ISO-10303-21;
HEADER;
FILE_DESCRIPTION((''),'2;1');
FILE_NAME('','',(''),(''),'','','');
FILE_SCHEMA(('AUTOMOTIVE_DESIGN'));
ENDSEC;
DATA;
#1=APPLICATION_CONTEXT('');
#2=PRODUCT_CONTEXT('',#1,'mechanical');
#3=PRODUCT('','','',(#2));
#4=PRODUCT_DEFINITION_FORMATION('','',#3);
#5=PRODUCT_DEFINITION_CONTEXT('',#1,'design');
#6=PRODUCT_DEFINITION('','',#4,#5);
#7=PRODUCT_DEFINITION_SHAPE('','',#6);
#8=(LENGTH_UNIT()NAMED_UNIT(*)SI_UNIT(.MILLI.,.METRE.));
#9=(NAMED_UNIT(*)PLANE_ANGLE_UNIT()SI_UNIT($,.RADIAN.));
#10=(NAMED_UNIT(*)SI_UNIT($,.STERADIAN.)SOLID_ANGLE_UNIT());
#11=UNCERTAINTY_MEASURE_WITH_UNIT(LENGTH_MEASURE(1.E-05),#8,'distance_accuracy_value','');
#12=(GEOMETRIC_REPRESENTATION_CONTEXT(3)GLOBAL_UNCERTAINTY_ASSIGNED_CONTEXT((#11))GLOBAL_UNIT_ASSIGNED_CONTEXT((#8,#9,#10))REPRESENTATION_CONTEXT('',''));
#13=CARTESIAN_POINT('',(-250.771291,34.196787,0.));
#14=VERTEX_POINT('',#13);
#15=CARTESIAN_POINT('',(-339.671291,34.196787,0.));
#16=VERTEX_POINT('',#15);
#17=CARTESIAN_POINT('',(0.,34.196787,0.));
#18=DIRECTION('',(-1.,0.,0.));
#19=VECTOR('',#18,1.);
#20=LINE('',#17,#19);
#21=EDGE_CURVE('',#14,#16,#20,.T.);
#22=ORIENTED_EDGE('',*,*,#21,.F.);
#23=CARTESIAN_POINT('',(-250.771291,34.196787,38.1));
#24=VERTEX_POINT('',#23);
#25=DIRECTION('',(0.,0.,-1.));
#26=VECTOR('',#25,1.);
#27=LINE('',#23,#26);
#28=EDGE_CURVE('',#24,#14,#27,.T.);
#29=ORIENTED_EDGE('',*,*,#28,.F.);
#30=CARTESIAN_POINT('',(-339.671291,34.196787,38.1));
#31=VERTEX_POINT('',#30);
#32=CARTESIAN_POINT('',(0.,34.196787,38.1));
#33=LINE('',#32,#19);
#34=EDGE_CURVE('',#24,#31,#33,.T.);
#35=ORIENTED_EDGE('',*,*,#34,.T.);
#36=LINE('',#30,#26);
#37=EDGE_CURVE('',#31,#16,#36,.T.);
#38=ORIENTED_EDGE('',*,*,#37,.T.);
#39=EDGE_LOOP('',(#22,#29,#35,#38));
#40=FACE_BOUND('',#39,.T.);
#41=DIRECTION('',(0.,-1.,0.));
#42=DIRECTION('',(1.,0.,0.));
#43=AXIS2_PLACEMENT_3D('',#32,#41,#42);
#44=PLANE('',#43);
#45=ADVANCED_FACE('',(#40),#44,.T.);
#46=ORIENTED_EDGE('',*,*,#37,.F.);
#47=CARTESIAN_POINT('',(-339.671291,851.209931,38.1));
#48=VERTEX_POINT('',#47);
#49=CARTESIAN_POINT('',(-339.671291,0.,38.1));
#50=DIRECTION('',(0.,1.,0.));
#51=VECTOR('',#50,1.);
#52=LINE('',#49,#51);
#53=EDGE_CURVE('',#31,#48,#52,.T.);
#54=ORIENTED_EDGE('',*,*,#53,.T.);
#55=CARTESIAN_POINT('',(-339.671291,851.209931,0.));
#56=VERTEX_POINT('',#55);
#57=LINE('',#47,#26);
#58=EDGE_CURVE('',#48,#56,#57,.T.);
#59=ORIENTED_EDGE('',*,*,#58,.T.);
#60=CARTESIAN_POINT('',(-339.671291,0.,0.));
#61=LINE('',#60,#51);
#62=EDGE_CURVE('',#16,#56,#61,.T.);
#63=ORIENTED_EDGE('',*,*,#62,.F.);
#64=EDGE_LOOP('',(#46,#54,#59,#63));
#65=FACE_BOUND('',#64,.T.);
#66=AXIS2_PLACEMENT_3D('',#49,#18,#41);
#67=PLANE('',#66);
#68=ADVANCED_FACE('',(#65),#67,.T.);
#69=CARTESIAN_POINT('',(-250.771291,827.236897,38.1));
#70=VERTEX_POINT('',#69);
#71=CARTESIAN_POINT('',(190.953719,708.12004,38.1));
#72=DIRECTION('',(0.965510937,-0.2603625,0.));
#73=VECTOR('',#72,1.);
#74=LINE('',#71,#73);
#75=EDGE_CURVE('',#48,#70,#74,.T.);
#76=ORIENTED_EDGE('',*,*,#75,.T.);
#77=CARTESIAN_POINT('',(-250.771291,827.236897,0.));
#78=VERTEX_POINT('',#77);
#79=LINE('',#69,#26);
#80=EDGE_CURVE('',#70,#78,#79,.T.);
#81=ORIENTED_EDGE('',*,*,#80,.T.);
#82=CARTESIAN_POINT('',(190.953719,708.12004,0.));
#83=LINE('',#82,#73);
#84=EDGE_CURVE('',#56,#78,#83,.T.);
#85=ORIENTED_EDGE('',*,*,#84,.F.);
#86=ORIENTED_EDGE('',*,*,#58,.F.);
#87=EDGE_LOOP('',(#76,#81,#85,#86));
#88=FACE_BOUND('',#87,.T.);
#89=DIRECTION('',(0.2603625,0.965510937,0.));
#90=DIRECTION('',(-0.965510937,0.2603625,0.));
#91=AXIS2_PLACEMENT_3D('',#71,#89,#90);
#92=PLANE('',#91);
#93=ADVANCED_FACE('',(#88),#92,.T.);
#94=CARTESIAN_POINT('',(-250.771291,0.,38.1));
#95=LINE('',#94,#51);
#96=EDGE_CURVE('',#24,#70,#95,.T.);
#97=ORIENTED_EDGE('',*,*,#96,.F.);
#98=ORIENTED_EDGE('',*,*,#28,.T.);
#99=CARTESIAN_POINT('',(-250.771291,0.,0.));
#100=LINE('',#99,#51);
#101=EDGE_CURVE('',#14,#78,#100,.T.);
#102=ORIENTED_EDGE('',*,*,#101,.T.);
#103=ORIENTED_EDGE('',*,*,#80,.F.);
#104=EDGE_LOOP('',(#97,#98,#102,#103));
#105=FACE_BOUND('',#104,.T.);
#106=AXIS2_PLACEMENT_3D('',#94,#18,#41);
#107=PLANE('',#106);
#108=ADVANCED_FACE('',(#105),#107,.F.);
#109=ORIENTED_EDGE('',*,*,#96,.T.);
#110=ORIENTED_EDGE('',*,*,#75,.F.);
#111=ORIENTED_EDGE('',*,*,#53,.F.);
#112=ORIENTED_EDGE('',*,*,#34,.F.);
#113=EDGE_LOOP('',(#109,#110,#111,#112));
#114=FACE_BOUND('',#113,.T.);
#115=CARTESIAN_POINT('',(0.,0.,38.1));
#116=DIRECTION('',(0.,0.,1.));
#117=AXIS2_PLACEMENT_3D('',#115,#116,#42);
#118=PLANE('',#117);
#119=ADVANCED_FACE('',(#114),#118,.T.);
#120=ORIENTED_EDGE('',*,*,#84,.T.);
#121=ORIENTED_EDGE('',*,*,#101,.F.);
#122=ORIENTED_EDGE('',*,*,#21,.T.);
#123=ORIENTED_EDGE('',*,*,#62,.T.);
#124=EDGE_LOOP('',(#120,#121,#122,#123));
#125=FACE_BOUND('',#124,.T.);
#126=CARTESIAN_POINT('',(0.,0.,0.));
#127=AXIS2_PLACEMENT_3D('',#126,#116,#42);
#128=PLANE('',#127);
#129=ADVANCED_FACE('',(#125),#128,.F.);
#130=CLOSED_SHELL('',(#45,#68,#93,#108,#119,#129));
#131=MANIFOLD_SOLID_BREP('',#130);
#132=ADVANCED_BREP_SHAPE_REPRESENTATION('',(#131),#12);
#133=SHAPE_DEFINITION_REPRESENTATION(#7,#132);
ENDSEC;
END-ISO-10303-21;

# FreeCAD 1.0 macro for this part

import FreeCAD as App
import Part
import Sketcher
from FreeCAD import Vector
Q = App.Units.Quantity

doc = App.newDocument("Part")
body = doc.addObject("PartDesign::Body", "Body")

# Sketch on XY plane
sketch1 = body.newObject("Sketcher::SketchObject", "Sketch")
sketch1.AttachmentSupport = (doc.getObject("XY_Plane"), [""])
sketch1.MapMode = "FlatFace"
sketch1.addGeometry([
    Part.LineSegment(Vector(-340, 34, 0), Vector(-251, 34, 0)),
    Part.LineSegment(Vector(-251, 34, 0), Vector(-251, 827, 0)),
    Part.LineSegment(Vector(-251, 827, 0), Vector(-340, 851, 0)),
    Part.LineSegment(Vector(-340, 851, 0), Vector(-340, 34, 0)),
], False)
sketch1.addConstraint([
    Sketcher.Constraint("Coincident", 0, 2, 1, 1),
    Sketcher.Constraint("Coincident", 1, 2, 2, 1),
    Sketcher.Constraint("Coincident", 2, 2, 3, 1),
    Sketcher.Constraint("Coincident", 3, 2, 0, 1),
    Sketcher.Constraint("Horizontal", 0),
    Sketcher.Constraint("Vertical", 1),
    Sketcher.Constraint("Vertical", 3),
    Sketcher.Constraint("DistanceX", 0, 1, 0, 2, Q("3.5 in")),
    Sketcher.Constraint("Distance", 2, Q("92.075601 mm")),
    Sketcher.Constraint("DistanceY", 1, 1, 1, 2, Q("793.04011 mm")),
    Sketcher.Constraint("DistanceX", 0, 2, -1, 1, Q("250.771291 mm")),
    Sketcher.Constraint("DistanceY", -1, 1, 2, 2, Q("851.209931 mm")),
])
pad1 = body.newObject("PartDesign::Pad", "Pad")
pad1.Profile = sketch1
pad1.Length = Q("1.5 in")

doc.recompute()
